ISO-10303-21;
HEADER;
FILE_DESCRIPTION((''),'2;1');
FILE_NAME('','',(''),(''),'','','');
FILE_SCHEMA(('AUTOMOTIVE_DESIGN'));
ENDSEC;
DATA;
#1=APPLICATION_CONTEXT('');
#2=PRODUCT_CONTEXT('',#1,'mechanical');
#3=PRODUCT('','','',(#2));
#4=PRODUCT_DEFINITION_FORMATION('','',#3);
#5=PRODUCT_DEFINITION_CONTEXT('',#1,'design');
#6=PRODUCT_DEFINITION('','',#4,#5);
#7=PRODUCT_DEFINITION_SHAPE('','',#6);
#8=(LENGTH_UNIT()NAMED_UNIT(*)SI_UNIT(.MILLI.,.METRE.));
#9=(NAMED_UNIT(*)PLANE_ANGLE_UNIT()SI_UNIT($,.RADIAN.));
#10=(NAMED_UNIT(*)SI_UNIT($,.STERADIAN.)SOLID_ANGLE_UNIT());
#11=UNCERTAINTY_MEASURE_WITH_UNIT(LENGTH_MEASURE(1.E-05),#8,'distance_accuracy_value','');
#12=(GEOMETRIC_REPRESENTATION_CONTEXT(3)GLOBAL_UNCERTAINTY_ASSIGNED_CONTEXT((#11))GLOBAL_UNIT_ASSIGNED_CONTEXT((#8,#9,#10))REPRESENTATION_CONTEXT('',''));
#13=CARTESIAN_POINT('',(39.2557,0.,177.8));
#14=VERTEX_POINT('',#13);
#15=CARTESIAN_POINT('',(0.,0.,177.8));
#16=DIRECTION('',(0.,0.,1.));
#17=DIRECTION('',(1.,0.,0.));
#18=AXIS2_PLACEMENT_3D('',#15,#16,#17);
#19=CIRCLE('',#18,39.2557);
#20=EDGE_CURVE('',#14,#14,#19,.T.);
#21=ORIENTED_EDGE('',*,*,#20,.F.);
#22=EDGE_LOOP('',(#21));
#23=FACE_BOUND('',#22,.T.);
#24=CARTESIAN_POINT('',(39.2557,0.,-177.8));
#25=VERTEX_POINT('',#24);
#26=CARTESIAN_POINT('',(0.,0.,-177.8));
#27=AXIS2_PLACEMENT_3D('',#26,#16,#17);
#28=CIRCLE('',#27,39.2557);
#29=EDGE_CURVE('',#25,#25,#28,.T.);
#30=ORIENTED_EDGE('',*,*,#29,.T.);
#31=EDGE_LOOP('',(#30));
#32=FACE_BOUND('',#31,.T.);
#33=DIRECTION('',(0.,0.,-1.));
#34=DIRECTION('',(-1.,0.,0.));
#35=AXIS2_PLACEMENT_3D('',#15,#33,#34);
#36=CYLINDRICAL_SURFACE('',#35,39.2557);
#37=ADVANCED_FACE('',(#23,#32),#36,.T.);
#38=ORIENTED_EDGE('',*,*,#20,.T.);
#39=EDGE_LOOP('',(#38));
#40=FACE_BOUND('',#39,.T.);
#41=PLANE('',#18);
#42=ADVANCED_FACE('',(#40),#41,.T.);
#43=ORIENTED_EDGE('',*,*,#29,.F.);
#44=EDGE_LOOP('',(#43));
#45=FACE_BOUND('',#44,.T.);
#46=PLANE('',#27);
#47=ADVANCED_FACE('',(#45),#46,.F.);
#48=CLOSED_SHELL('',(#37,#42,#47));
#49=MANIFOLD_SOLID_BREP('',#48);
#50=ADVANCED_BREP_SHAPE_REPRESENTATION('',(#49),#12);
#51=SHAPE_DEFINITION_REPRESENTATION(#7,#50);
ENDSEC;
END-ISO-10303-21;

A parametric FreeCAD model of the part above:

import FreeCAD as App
import Part
import Sketcher

V = App.Vector
Q = App.Units.Quantity

doc = App.newDocument("Part")
body = doc.addObject("PartDesign::Body", "Body")

sketch1 = doc.addObject("Sketcher::SketchObject", "Sketch")
body.addObject(sketch1)
sketch1.AttachmentSupport = (doc.XY_Plane, [""])
sketch1.MapMode = "FlatFace"
sketch1.addGeometry(Part.Circle(V(0, 0, 0), V(0, 0, 1), 39.2557), False)
sketch1.addConstraint(Sketcher.Constraint("Coincident", 0, 3, -1, 1))
sketch1.addConstraint(Sketcher.Constraint("Diameter", 0, Q("3.091 in")))
pad1 = doc.addObject("PartDesign::Pad", "Pad")
body.addObject(pad1)
pad1.Profile = sketch1
pad1.Length = Q("14 in")
pad1.Midplane = True

doc.recompute()
